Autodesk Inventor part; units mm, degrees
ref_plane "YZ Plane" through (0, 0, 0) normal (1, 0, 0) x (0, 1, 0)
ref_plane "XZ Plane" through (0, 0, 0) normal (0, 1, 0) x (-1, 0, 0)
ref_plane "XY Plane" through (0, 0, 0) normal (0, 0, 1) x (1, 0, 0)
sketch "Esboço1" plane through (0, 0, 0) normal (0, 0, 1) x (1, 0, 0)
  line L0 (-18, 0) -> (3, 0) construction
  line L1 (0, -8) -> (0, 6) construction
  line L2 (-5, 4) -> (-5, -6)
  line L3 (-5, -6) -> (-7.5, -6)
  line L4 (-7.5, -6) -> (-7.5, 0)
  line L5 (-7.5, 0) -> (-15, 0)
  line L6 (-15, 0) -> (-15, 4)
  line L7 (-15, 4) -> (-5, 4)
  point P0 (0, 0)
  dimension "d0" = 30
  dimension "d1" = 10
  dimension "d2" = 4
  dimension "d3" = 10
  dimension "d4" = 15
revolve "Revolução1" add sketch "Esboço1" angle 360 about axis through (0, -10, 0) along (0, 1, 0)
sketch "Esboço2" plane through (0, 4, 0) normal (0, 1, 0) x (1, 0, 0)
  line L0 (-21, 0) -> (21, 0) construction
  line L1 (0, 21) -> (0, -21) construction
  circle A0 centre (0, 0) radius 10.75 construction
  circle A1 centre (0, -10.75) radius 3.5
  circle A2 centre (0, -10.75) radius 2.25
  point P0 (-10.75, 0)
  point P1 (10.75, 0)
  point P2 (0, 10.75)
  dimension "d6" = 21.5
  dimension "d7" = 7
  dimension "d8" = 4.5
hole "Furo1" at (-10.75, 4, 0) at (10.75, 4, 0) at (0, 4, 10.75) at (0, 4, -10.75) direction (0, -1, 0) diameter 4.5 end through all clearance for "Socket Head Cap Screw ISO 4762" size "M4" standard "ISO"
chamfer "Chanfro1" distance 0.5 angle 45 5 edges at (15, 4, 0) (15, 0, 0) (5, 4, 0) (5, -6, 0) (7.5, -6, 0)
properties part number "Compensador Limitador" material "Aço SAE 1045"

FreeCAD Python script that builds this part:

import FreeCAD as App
import Part
import Sketcher
Q = App.Units.Quantity


def edges_at(feature, points):
    """Names of the edges that pass closest to the given points."""
    edges = feature.Shape.Edges
    near = lambda p: min(range(len(edges)), key=lambda i: edges[i].distToShape(Part.Vertex(*p))[0])
    return sorted({f"Edge{near(p) + 1}" for p in points})

doc = App.newDocument("Part")
body = doc.addObject("PartDesign::Body", "Body")

sketch1 = body.newObject("Sketcher::SketchObject", "Sketch")
sketch1.AttachmentSupport = (doc.getObject("XY_Plane"), [""])
sketch1.MapMode = "FlatFace"
sketch1.addGeometry(Part.LineSegment(App.Vector(-5, -6, 0), App.Vector(-5, 4, 0)), False)
sketch1.addGeometry(Part.LineSegment(App.Vector(-5, 4, 0), App.Vector(-15, 4, 0)), False)
sketch1.addGeometry(Part.LineSegment(App.Vector(-15, 4, 0), App.Vector(-15, 0, 0)), False)
sketch1.addGeometry(Part.LineSegment(App.Vector(-15, 0, 0), App.Vector(-7.5, 0, 0)), False)
sketch1.addGeometry(Part.LineSegment(App.Vector(-7.5, 0, 0), App.Vector(-7.5, -6, 0)), False)
sketch1.addGeometry(Part.LineSegment(App.Vector(-7.5, -6, 0), App.Vector(-5, -6, 0)), False)
sketch1.addConstraint(Sketcher.Constraint("Coincident", 0, 2, 1, 1))
sketch1.addConstraint(Sketcher.Constraint("Coincident", 1, 2, 2, 1))
sketch1.addConstraint(Sketcher.Constraint("Coincident", 2, 2, 3, 1))
sketch1.addConstraint(Sketcher.Constraint("Coincident", 3, 2, 4, 1))
sketch1.addConstraint(Sketcher.Constraint("Coincident", 4, 2, 5, 1))
sketch1.addConstraint(Sketcher.Constraint("Coincident", 5, 2, 0, 1))
sketch1.addConstraint(Sketcher.Constraint("Vertical", 0))
sketch1.addConstraint(Sketcher.Constraint("Horizontal", 1))
sketch1.addConstraint(Sketcher.Constraint("Vertical", 2))
sketch1.addConstraint(Sketcher.Constraint("Horizontal", 3))
sketch1.addConstraint(Sketcher.Constraint("Vertical", 4))
sketch1.addConstraint(Sketcher.Constraint("Horizontal", 5))
sketch1.addConstraint(Sketcher.Constraint("PointOnObject", 2, 2, -1))
sketch1.addConstraint(Sketcher.Constraint("Equal", 1, 0))
sketch1.addConstraint(Sketcher.Constraint("DistanceX", 1, 2, 1, 1, Q("10 mm")))
sketch1.addConstraint(Sketcher.Constraint("DistanceY", 2, 2, 2, 1, Q("4 mm")))
sketch1.addConstraint(Sketcher.Constraint("DistanceX", 1, 2, -1, 1, Q("15 mm")))
sketch1.addConstraint(Sketcher.Constraint("DistanceX", 3, 1, 3, 2, Q("7.5 mm")))
revolution = body.newObject("PartDesign::Revolution", "Revolution")
revolution.Profile = sketch1
revolution.ReferenceAxis = (sketch1, ["V_Axis"])
revolution.Angle = 360

sketch2 = body.newObject("Sketcher::SketchObject", "Sketch001")
sketch2.AttachmentSupport = (doc.getObject("XZ_Plane"), [""])
sketch2.MapMode = "FlatFace"
sketch2.AttachmentOffset = App.Placement(App.Vector(0, 0, -4), App.Rotation())
sketch2.addGeometry(Part.Circle(App.Vector(-10.8, 0, 0), App.Vector(0, 0, 1), 2.2), False)
sketch2.addGeometry(Part.Circle(App.Vector(10.8, 0, 0), App.Vector(0, 0, 1), 2.2), False)
sketch2.addGeometry(Part.Circle(App.Vector(0, 10.8, 0), App.Vector(0, 0, 1), 2.2), False)
sketch2.addGeometry(Part.Circle(App.Vector(0, -10.8, 0), App.Vector(0, 0, 1), 2.2), False)
sketch2.addConstraint(Sketcher.Constraint("Equal", 0, 1))
sketch2.addConstraint(Sketcher.Constraint("Equal", 1, 2))
sketch2.addConstraint(Sketcher.Constraint("Equal", 2, 3))
sketch2.addConstraint(Sketcher.Constraint("Symmetric", 0, 3, 1, 3, -1, 1))
sketch2.addConstraint(Sketcher.Constraint("Symmetric", 2, 3, 3, 3, -1, 1))
sketch2.addConstraint(Sketcher.Constraint("PointOnObject", 0, 3, -1))
sketch2.addConstraint(Sketcher.Constraint("PointOnObject", 2, 3, -2))
sketch2.addConstraint(Sketcher.Constraint("Diameter", 0, Q("4.5 mm")))
sketch2.addConstraint(Sketcher.Constraint("DistanceX", 0, 3, 1, 3, Q("21.5 mm")))
sketch2.addConstraint(Sketcher.Constraint("DistanceY", 3, 3, 2, 3, Q("21.5 mm")))
doc.recompute()
hole = body.newObject("PartDesign::Hole", "Hole")
hole.Profile = sketch2
hole.ThreadType = "None"
hole.Diameter = 4.5
hole.DepthType = "ThroughAll"
hole.Reversed = True
doc.recompute()

chamfer = body.newObject("PartDesign::Chamfer", "Chamfer")
chamfer.Base = (hole, edges_at(hole, [
    (15, 4, 0),
    (15, 0, 0),
    (5, 4, 0),
    (5, -6, 0),
    (7.5, -6, 0),
]))
chamfer.Size = 0.5

doc.recompute()
